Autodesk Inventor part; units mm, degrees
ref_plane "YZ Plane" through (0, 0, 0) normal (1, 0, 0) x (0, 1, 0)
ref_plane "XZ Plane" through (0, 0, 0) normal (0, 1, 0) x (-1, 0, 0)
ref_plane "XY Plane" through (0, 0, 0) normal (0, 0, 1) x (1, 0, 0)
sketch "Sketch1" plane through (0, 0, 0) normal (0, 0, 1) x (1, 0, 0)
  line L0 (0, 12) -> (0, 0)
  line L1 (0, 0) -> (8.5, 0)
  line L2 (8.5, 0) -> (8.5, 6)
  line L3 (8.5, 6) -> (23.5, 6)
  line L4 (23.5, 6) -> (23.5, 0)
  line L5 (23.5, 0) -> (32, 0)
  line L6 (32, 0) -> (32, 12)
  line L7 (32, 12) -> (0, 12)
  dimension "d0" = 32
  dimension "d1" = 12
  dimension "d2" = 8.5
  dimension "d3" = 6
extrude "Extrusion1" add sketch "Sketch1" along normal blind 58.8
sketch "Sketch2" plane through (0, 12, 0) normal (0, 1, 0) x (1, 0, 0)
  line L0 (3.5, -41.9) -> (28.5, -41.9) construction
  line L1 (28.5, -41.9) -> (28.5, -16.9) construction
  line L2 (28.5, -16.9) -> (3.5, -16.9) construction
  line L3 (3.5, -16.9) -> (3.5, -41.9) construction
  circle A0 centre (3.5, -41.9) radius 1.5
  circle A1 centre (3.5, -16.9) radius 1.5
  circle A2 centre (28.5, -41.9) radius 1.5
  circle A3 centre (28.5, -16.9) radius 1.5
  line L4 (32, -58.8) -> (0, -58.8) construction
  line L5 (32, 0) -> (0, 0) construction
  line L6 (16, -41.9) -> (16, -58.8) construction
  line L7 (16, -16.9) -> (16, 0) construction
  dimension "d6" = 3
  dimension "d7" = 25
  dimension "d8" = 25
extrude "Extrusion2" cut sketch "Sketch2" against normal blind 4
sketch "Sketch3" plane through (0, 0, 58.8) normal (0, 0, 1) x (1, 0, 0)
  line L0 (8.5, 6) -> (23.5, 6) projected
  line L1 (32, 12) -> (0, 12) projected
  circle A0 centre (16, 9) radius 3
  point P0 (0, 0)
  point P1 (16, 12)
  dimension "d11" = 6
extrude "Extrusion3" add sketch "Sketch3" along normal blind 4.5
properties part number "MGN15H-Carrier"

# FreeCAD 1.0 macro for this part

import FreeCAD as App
import Part
import Sketcher

V = App.Vector
Q = App.Units.Quantity


def add_polygon(sketch, points):
    """Adds a closed chain of lines whose ends are joined by coincident constraints."""
    first, n = sketch.GeometryCount, len(points)
    for a, b in zip(points, points[1:] + points[:1]):
        sketch.addGeometry(Part.LineSegment(App.Vector(*a, 0), App.Vector(*b, 0)), False)
    for i in range(n):
        sketch.addConstraint(Sketcher.Constraint("Coincident", first + i, 2, first + (i + 1) % n, 1))

doc = App.newDocument("Part")
body = doc.addObject("PartDesign::Body", "Body")

# Sketch on XY plane
sketch1 = doc.addObject("Sketcher::SketchObject", "Sketch")
body.addObject(sketch1)
sketch1.AttachmentSupport = (doc.XY_Plane, [""])
sketch1.MapMode = "FlatFace"
add_polygon(sketch1, [(32, 12), (0, 12), (0, 0), (8, 0), (8, 6), (24, 6), (24, 0), (32, 0)])  # lines 0-7
sketch1.addConstraint([
    Sketcher.Constraint("Horizontal", 0),
    Sketcher.Constraint("Vertical", 1),
    Sketcher.Constraint("Horizontal", 2),
    Sketcher.Constraint("Vertical", 3),
    Sketcher.Constraint("Horizontal", 4),
    Sketcher.Constraint("Vertical", 5),
    Sketcher.Constraint("Horizontal", 6),
    Sketcher.Constraint("Vertical", 7),
    Sketcher.Constraint("Coincident", 1, 2, -1, 1),
    Sketcher.Constraint("PointOnObject", 5, 2, -1),
    Sketcher.Constraint("Equal", 2, 6),
    Sketcher.Constraint("DistanceX", 0, 2, 0, 1, Q("32 mm")),
    Sketcher.Constraint("DistanceY", 1, 2, 1, 1, Q("12 mm")),
    Sketcher.Constraint("DistanceY", 3, 1, 3, 2, Q("6 mm")),
    Sketcher.Constraint("DistanceX", 2, 1, 2, 2, Q("8.5 mm")),
])
pad1 = doc.addObject("PartDesign::Pad", "Pad")
body.addObject(pad1)
pad1.Profile = sketch1
pad1.Length = 58.8

# Sketch on XZ plane
sketch2 = doc.addObject("Sketcher::SketchObject", "Sketch001")
body.addObject(sketch2)
sketch2.AttachmentSupport = (doc.XZ_Plane, [""])
sketch2.MapMode = "FlatFace"
sketch2.AttachmentOffset = App.Placement(V(0, 0, -12), App.Rotation())
sketch2.addGeometry([
    Part.Circle(V(3.5, 41.9, 0), V(0, 0, 1), 1.5),
    Part.Circle(V(3.5, 16.9, 0), V(0, 0, 1), 1.5),
    Part.Circle(V(28.5, 41.9, 0), V(0, 0, 1), 1.5),
    Part.Circle(V(28.5, 16.9, 0), V(0, 0, 1), 1.5),
], False)
sketch2.addConstraint([
    Sketcher.Constraint("Equal", 0, 1),
    Sketcher.Constraint("Equal", 1, 2),
    Sketcher.Constraint("Equal", 2, 3),
    Sketcher.Constraint("Horizontal", 0, 3, 2, 3),
    Sketcher.Constraint("Horizontal", 1, 3, 3, 3),
    Sketcher.Constraint("Vertical", 0, 3, 1, 3),
    Sketcher.Constraint("Vertical", 2, 3, 3, 3),
    Sketcher.Constraint("Diameter", 0, Q("3 mm")),
    Sketcher.Constraint("DistanceY", 1, 3, 0, 3, Q("25 mm")),
    Sketcher.Constraint("DistanceX", 0, 3, 2, 3, Q("25 mm")),
    Sketcher.Constraint("DistanceX", -1, 1, 0, 3, Q("3.5 mm")),
    Sketcher.Constraint("DistanceY", -1, 1, 0, 3, Q("41.9 mm")),
])
pocket1 = doc.addObject("PartDesign::Pocket", "Pocket")
body.addObject(pocket1)
pocket1.Profile = sketch2
pocket1.Length = 4
pocket1.Reversed = True

# Sketch on XY plane
sketch3 = doc.addObject("Sketcher::SketchObject", "Sketch002")
body.addObject(sketch3)
sketch3.AttachmentSupport = (doc.XY_Plane, [""])
sketch3.MapMode = "FlatFace"
sketch3.AttachmentOffset = App.Placement(V(0, 0, 58.8), App.Rotation())
sketch3.addGeometry(Part.Circle(V(16, 9, 0), V(0, 0, 1), 3), False)
sketch3.addConstraint([
    Sketcher.Constraint("Diameter", 0, Q("6 mm")),
    Sketcher.Constraint("DistanceX", -1, 1, 0, 3, Q("16 mm")),
    Sketcher.Constraint("DistanceY", -1, 1, 0, 3, Q("9 mm")),
])
pad2 = doc.addObject("PartDesign::Pad", "Pad001")
body.addObject(pad2)
pad2.Profile = sketch3
pad2.Length = 4.5

doc.recompute()
